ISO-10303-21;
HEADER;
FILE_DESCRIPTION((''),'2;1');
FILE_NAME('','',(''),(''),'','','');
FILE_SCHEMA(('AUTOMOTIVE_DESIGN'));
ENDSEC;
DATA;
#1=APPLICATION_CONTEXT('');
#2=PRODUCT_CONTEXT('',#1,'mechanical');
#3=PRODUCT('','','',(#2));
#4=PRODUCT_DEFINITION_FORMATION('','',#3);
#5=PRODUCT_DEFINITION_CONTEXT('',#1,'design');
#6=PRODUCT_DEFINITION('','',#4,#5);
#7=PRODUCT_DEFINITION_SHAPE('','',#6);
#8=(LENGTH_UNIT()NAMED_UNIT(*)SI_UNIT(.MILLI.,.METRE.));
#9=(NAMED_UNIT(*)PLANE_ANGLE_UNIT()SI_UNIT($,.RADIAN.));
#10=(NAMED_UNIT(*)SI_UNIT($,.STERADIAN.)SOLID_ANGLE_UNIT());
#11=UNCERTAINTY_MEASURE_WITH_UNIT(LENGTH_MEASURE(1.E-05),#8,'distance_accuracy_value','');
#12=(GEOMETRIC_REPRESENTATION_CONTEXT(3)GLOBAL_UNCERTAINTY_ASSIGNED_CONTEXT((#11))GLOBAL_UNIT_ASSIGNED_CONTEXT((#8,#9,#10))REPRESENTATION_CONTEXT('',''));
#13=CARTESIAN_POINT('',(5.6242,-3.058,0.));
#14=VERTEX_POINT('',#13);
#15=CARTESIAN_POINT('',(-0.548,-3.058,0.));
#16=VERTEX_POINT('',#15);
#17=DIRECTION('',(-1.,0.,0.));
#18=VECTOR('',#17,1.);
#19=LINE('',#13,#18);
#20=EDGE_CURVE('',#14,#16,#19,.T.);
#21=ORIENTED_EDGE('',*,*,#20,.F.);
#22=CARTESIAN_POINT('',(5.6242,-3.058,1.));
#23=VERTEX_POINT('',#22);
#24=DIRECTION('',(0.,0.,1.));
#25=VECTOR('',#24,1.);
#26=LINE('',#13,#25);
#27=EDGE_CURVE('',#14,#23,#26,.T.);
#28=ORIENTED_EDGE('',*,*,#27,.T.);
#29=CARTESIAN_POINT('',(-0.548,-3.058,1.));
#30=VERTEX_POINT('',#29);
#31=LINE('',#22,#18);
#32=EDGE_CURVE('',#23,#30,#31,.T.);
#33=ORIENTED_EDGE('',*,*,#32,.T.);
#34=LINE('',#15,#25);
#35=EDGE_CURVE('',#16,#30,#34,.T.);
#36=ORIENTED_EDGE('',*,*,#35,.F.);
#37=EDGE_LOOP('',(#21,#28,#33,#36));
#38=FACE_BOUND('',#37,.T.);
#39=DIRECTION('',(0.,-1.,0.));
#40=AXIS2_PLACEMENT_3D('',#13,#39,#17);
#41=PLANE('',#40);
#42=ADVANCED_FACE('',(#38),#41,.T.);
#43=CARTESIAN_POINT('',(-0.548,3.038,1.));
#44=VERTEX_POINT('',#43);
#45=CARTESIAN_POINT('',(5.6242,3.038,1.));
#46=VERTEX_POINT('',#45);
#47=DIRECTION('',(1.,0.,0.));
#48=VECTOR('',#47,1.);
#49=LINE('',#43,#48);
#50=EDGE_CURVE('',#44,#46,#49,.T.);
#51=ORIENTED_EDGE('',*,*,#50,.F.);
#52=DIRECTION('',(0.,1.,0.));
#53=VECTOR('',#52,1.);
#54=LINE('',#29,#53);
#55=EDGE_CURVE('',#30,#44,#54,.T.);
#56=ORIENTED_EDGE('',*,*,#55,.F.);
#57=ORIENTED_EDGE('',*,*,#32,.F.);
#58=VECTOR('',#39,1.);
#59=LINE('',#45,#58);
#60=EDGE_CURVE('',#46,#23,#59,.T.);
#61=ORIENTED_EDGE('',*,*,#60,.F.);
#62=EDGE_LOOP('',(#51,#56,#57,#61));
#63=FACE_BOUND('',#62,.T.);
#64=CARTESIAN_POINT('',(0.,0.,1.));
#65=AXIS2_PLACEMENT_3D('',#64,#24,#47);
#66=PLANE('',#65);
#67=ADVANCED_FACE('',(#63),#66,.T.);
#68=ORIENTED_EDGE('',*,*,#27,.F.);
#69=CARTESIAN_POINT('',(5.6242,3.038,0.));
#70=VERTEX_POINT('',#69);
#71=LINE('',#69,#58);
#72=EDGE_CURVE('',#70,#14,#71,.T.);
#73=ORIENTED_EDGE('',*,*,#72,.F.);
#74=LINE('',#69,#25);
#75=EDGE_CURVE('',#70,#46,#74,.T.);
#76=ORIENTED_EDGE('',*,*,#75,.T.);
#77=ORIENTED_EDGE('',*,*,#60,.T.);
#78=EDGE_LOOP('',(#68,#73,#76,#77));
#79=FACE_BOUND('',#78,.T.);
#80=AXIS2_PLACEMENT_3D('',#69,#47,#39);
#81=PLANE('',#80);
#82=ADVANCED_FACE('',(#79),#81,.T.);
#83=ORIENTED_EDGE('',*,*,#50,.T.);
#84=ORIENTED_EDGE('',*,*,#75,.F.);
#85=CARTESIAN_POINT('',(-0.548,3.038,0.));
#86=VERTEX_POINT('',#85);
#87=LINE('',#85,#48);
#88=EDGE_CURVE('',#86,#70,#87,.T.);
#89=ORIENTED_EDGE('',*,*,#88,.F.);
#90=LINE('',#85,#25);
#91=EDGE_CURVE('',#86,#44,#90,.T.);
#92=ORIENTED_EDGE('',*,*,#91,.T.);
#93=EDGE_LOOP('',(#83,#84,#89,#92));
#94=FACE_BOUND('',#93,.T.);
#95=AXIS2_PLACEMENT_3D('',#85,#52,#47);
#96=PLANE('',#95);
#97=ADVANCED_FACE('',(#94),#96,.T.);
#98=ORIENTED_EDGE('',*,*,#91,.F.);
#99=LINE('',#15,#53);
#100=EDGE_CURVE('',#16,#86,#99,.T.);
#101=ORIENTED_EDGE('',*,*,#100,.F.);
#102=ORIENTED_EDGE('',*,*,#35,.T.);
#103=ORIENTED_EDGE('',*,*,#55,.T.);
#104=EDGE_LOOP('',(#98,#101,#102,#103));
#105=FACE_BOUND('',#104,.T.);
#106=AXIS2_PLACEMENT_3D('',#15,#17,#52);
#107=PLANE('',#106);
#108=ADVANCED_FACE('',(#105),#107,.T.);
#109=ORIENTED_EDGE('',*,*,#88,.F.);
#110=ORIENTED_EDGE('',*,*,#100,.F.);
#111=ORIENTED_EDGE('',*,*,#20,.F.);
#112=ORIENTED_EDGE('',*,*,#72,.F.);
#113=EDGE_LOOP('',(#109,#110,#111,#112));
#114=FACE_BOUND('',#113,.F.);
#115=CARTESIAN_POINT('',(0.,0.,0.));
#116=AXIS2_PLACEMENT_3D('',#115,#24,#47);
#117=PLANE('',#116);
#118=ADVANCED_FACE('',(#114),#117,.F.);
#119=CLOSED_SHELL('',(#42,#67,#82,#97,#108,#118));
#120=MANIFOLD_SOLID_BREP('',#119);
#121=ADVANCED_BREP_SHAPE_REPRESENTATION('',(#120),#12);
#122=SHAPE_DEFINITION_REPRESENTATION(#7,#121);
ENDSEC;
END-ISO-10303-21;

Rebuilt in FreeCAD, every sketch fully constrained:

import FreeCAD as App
import Part
import Sketcher

V = App.Vector
Q = App.Units.Quantity

doc = App.newDocument("Part")
body = doc.addObject("PartDesign::Body", "Body")

sketch1 = body.newObject("Sketcher::SketchObject", "Sketch")
sketch1.AttachmentSupport = (doc.getObject("XY_Plane"), [""])
sketch1.MapMode = "FlatFace"
sketch1.addGeometry(Part.LineSegment(V(6, 3, 0), V(-1, 3, 0)), False)
sketch1.addGeometry(Part.LineSegment(V(-1, 3, 0), V(-1, -3, 0)), False)
sketch1.addGeometry(Part.LineSegment(V(-1, -3, 0), V(6, -3, 0)), False)
sketch1.addGeometry(Part.LineSegment(V(6, -3, 0), V(6, 3, 0)), False)
sketch1.addConstraint(Sketcher.Constraint("Coincident", 0, 2, 1, 1))
sketch1.addConstraint(Sketcher.Constraint("Coincident", 1, 2, 2, 1))
sketch1.addConstraint(Sketcher.Constraint("Coincident", 2, 2, 3, 1))
sketch1.addConstraint(Sketcher.Constraint("Coincident", 3, 2, 0, 1))
sketch1.addConstraint(Sketcher.Constraint("Horizontal", 0))
sketch1.addConstraint(Sketcher.Constraint("Vertical", 1))
sketch1.addConstraint(Sketcher.Constraint("Horizontal", 2))
sketch1.addConstraint(Sketcher.Constraint("Vertical", 3))
sketch1.addConstraint(Sketcher.Constraint("DistanceY", 1, 2, 1, 1, Q("0.24 in")))
sketch1.addConstraint(Sketcher.Constraint("DistanceX", 0, 2, 0, 1, Q("0.243 in")))
sketch1.addConstraint(Sketcher.Constraint("DistanceY", -1, 1, 0, 2, Q("0.1196 in")))
sketch1.addConstraint(Sketcher.Constraint("DistanceX", 0, 2, -1, 1, 0.548))
pad1 = body.newObject("PartDesign::Pad", "Pad")
pad1.Profile = sketch1
pad1.Length = 1

doc.recompute()
